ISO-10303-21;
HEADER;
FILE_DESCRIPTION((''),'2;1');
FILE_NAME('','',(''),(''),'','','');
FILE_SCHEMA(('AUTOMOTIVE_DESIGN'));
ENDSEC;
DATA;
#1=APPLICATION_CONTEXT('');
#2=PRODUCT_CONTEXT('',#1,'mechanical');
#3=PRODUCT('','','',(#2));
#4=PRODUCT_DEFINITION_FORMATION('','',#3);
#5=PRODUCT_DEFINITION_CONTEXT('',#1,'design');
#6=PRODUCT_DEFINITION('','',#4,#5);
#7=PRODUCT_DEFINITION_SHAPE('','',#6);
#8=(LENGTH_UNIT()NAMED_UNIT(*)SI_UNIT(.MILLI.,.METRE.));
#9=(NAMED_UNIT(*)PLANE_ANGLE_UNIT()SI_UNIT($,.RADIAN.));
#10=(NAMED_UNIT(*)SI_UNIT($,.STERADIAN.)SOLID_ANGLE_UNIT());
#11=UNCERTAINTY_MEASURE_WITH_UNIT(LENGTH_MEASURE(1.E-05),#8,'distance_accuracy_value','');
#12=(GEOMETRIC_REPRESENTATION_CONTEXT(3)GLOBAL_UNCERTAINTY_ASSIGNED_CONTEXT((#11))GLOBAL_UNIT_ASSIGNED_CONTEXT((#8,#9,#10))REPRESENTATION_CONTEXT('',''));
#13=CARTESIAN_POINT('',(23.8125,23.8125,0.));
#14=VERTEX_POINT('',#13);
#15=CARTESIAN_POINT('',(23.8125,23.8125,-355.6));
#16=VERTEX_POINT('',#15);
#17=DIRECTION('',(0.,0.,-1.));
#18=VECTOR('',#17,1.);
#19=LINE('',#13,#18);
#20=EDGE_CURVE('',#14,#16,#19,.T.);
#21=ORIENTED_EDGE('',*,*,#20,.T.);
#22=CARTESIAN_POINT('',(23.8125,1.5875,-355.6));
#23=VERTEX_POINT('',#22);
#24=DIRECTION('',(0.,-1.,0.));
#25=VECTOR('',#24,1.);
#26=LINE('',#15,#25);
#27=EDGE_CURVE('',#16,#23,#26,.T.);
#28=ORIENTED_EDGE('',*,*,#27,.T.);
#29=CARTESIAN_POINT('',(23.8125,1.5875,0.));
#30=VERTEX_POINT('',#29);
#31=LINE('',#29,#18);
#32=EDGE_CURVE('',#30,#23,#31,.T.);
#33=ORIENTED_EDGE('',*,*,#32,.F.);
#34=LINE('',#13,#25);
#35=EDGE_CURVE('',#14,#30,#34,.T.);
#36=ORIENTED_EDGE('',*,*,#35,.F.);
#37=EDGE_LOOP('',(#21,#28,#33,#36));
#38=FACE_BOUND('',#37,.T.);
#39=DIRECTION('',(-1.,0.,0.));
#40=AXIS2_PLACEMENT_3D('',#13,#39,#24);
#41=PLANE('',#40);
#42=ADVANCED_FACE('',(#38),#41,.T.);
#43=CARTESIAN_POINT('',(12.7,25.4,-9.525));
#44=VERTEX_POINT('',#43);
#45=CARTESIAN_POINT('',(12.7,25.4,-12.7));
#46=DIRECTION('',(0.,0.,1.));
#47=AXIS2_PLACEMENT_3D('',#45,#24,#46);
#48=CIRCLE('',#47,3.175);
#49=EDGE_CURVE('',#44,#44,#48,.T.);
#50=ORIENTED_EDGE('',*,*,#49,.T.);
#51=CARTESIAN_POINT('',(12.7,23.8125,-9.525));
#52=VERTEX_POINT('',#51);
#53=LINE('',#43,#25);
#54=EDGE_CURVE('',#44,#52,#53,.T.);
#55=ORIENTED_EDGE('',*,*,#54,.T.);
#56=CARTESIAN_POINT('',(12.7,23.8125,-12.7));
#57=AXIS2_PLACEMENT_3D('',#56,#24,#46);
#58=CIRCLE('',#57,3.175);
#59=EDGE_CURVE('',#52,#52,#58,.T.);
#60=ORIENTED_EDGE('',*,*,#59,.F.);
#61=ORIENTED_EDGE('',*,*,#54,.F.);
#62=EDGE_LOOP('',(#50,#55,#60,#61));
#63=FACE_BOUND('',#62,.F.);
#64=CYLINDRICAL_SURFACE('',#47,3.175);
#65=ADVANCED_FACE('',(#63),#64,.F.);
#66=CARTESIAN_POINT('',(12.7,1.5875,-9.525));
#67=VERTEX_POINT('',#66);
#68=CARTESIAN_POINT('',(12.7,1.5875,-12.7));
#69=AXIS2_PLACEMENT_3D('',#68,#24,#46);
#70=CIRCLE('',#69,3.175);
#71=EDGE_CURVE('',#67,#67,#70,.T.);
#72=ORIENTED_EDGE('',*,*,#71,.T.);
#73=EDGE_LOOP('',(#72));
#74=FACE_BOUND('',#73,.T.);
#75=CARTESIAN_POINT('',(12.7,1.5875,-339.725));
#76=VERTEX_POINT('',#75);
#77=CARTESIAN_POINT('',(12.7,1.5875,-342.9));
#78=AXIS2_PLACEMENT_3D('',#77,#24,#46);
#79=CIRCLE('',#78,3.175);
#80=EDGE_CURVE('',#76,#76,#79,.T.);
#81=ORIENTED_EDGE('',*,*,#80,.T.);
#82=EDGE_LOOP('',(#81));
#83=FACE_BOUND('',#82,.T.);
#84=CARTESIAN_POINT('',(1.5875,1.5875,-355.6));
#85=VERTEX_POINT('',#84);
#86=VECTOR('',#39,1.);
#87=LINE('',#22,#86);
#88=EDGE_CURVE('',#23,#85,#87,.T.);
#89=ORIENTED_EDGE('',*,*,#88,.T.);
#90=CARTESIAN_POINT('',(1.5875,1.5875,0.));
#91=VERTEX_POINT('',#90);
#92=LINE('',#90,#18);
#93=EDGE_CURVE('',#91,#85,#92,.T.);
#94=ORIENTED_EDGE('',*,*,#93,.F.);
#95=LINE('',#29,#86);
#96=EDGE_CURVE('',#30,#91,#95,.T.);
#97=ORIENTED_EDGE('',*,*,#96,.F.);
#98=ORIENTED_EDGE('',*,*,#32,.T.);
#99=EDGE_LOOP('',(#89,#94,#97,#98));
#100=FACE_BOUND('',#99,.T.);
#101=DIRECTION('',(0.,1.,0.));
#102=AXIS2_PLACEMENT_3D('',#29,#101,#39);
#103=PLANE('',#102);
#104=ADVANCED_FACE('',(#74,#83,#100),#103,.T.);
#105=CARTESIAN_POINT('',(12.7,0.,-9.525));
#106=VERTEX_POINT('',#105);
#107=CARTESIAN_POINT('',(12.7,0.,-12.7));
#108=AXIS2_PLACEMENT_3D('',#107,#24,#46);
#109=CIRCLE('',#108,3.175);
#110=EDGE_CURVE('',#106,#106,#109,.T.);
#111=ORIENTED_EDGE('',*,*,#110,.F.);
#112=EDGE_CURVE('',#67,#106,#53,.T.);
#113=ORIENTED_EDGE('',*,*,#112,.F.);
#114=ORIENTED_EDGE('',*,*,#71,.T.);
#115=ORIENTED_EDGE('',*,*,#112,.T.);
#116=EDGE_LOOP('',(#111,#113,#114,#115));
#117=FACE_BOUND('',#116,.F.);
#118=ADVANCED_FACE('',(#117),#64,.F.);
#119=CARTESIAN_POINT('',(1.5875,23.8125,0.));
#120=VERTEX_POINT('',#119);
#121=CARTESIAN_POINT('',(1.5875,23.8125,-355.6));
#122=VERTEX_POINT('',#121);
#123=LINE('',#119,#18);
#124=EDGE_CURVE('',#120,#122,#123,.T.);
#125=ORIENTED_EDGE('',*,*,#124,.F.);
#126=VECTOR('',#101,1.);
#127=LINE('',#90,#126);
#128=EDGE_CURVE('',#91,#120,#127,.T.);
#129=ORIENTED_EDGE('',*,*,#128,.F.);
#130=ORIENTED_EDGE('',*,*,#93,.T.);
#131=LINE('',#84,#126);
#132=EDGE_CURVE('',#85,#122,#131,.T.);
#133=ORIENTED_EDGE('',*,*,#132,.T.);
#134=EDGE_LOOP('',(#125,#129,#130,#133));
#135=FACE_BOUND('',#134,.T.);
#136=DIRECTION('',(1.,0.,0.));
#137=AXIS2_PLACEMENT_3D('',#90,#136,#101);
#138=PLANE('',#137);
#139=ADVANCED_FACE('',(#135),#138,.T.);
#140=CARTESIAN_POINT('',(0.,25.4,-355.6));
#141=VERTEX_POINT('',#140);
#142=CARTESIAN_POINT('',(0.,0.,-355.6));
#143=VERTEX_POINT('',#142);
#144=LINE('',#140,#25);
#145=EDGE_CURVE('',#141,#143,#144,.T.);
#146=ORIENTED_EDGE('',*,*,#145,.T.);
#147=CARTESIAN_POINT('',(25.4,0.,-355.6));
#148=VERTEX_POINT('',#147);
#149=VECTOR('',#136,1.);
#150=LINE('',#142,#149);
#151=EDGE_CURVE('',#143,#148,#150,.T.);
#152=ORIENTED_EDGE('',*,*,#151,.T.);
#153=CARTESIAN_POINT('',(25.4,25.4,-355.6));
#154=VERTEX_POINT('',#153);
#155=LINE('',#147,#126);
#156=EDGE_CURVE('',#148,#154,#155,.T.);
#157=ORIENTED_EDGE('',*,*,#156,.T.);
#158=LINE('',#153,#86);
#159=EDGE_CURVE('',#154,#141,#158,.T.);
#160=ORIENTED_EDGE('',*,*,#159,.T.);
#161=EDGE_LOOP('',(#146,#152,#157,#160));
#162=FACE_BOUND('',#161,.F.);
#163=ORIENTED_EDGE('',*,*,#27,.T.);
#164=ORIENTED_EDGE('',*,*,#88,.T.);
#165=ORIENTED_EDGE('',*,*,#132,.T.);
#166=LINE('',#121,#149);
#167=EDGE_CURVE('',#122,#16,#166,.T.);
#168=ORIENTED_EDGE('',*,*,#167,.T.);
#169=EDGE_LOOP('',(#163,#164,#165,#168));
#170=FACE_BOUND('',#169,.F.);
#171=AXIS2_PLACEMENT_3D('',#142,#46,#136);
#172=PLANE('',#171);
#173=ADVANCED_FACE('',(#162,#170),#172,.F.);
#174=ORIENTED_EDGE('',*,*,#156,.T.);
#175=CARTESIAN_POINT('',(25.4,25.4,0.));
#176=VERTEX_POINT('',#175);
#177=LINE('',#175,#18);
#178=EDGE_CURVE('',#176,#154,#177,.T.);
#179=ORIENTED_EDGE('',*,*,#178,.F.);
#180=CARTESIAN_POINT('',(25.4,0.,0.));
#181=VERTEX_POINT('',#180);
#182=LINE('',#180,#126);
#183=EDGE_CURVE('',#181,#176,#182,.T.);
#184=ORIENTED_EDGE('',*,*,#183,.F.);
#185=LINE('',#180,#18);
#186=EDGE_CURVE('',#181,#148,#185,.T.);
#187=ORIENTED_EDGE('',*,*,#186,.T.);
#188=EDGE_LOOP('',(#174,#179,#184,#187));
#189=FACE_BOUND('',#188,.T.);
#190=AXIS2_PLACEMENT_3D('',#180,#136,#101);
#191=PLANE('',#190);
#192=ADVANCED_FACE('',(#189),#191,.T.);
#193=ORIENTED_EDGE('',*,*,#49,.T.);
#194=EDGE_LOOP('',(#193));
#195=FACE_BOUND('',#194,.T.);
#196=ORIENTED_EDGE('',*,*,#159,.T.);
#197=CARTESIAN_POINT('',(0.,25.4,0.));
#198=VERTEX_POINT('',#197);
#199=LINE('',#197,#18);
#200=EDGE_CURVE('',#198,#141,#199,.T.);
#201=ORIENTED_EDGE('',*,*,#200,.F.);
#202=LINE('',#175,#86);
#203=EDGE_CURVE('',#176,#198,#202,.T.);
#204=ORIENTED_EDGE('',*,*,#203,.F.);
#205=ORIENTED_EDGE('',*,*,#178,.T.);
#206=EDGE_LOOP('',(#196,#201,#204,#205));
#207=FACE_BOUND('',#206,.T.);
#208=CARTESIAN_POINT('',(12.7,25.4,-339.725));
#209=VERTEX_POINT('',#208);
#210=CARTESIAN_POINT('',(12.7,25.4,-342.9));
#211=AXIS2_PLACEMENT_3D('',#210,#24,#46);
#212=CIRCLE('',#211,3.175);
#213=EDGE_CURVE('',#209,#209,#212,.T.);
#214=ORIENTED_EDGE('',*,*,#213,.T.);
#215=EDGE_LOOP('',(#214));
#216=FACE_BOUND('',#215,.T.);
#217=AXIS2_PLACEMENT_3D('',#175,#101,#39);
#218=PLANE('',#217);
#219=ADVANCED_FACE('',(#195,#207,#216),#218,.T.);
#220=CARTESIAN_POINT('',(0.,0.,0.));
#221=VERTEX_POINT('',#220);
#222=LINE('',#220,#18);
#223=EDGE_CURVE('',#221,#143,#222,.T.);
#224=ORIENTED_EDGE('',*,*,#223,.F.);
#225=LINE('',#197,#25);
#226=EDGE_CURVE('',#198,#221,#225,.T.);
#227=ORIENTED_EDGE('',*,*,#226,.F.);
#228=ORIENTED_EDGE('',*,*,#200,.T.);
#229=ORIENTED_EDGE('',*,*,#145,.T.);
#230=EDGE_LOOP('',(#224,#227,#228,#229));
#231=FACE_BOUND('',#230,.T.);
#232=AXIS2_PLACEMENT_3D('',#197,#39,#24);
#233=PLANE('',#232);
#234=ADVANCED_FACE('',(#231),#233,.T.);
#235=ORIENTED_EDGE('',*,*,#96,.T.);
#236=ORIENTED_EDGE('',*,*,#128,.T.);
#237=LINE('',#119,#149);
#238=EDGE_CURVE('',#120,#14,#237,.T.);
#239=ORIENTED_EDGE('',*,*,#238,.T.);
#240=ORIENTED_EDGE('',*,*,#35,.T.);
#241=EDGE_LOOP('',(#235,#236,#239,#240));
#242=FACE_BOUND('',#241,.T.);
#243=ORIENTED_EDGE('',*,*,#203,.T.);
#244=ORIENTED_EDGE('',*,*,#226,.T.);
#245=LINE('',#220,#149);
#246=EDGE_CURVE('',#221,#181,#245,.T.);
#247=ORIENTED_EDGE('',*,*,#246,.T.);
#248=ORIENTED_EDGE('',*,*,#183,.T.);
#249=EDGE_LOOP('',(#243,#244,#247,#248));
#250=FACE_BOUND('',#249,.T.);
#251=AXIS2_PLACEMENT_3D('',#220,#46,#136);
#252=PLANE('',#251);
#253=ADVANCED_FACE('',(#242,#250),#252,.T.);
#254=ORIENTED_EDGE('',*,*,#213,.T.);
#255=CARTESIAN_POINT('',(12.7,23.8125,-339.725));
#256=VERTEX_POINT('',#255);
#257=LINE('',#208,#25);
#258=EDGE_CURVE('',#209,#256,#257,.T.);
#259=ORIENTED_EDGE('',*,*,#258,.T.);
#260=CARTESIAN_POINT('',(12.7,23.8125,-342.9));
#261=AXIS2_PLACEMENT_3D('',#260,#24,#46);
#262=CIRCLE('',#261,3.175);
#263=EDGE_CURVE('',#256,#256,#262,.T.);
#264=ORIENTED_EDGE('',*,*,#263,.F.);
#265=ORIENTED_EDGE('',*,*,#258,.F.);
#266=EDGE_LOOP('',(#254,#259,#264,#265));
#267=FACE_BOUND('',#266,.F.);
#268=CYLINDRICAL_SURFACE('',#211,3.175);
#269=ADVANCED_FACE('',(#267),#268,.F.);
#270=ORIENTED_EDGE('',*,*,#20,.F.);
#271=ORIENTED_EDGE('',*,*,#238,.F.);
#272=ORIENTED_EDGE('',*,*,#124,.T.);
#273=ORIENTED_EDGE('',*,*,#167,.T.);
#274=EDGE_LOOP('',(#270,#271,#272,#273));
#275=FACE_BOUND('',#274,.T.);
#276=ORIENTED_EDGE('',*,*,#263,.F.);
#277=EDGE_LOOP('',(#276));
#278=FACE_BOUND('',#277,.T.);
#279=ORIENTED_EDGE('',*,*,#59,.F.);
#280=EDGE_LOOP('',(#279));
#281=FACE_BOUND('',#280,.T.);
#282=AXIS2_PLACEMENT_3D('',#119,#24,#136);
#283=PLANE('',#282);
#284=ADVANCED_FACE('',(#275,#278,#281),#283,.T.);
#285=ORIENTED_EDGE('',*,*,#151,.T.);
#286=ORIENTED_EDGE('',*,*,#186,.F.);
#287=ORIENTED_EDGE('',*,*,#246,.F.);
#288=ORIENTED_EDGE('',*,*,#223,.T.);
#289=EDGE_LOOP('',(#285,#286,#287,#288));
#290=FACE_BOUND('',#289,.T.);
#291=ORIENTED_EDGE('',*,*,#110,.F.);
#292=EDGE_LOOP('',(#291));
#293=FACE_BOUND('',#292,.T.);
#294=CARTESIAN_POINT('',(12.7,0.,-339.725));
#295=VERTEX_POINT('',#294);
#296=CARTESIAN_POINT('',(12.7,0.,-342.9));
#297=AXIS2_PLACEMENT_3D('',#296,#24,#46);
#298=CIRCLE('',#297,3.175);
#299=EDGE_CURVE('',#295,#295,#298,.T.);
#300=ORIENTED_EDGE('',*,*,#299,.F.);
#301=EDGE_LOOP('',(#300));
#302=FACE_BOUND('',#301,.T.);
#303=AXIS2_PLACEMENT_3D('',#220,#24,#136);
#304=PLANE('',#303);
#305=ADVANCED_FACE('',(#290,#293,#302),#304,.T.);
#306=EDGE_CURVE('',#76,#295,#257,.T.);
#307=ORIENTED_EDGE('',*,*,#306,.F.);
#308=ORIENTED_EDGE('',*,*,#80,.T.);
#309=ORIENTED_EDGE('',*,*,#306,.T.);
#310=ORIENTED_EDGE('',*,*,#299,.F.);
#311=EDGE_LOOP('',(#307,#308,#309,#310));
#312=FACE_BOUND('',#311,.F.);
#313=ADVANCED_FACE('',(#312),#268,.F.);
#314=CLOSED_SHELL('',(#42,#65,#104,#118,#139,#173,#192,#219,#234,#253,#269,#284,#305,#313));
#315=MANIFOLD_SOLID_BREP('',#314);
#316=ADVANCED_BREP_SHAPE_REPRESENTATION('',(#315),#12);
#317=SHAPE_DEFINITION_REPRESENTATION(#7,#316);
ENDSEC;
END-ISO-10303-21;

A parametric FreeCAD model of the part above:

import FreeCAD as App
import Part
import Sketcher

V = App.Vector
Q = App.Units.Quantity


def add_polygon(sketch, points):
    """Adds a closed chain of lines whose ends are joined by coincident constraints."""
    first, n = sketch.GeometryCount, len(points)
    for a, b in zip(points, points[1:] + points[:1]):
        sketch.addGeometry(Part.LineSegment(App.Vector(*a, 0), App.Vector(*b, 0)), False)
    for i in range(n):
        sketch.addConstraint(Sketcher.Constraint("Coincident", first + i, 2, first + (i + 1) % n, 1))

doc = App.newDocument("Part")
body = doc.addObject("PartDesign::Body", "Body")

# Sketch on XY plane
sketch1 = doc.addObject("Sketcher::SketchObject", "Sketch")
body.addObject(sketch1)
sketch1.AttachmentSupport = (doc.XY_Plane, [""])
sketch1.MapMode = "FlatFace"
add_polygon(sketch1, [(0, 25), (0, 0), (25, 0), (25, 25)])  # lines 0-3
add_polygon(sketch1, [(2, 2), (2, 24), (24, 24), (24, 2)])  # lines 4-7
sketch1.addConstraint([
    Sketcher.Constraint("Vertical", 0),
    Sketcher.Constraint("Horizontal", 1),
    Sketcher.Constraint("Vertical", 2),
    Sketcher.Constraint("Horizontal", 3),
    Sketcher.Constraint("Vertical", 4),
    Sketcher.Constraint("Horizontal", 5),
    Sketcher.Constraint("Vertical", 6),
    Sketcher.Constraint("Horizontal", 7),
    Sketcher.Constraint("Coincident", 0, 2, -1, 1),
    Sketcher.Constraint("Equal", 3, 0),
    Sketcher.Constraint("Equal", 7, 4),
    Sketcher.Constraint("DistanceX", 1, 1, 1, 2, Q("1 in")),
    Sketcher.Constraint("DistanceX", -1, 1, 4, 2, Q("0.0625 in")),
    Sketcher.Constraint("DistanceY", -1, 1, 6, 2, Q("0.0625 in")),
    Sketcher.Constraint("DistanceY", 4, 2, 3, 2, Q("0.0625 in")),
])
pad1 = doc.addObject("PartDesign::Pad", "Pad")
body.addObject(pad1)
pad1.Profile = sketch1
pad1.Length = Q("14 in")
pad1.Reversed = True

# Sketch on XZ plane
sketch2 = doc.addObject("Sketcher::SketchObject", "Sketch001")
body.addObject(sketch2)
sketch2.AttachmentSupport = (doc.XZ_Plane, [""])
sketch2.MapMode = "FlatFace"
sketch2.AttachmentOffset = App.Placement(V(0, 0, -1 * 25.4), App.Rotation())
sketch2.addGeometry([
    Part.Circle(V(12.7, -12.7, 0), V(0, 0, 1), 3.2),
    Part.Circle(V(12.7, -342.9, 0), V(0, 0, 1), 3.2),
], False)
sketch2.addConstraint([
    Sketcher.Constraint("Equal", 0, 1),
    Sketcher.Constraint("Vertical", 0, 3, 1, 3),
    Sketcher.Constraint("Diameter", 0, Q("0.25 in")),
    Sketcher.Constraint("DistanceY", 1, 3, 0, 3, Q("13 in")),
    Sketcher.Constraint("DistanceX", -1, 1, 0, 3, Q("0.5 in")),
    Sketcher.Constraint("DistanceY", 0, 3, -1, 1, Q("0.5 in")),
])
doc.recompute()
hole = doc.addObject("PartDesign::Hole", "Hole")
body.addObject(hole)
hole.Profile = sketch2
hole.ThreadType = "None"
hole.Diameter = Q("0.25 in")
hole.DepthType = "Dimension"
hole.Depth = Q("1 in")
hole.DrillPoint = "Angled"
hole.DrillPointAngle = 118
hole.Reversed = True

doc.recompute()
